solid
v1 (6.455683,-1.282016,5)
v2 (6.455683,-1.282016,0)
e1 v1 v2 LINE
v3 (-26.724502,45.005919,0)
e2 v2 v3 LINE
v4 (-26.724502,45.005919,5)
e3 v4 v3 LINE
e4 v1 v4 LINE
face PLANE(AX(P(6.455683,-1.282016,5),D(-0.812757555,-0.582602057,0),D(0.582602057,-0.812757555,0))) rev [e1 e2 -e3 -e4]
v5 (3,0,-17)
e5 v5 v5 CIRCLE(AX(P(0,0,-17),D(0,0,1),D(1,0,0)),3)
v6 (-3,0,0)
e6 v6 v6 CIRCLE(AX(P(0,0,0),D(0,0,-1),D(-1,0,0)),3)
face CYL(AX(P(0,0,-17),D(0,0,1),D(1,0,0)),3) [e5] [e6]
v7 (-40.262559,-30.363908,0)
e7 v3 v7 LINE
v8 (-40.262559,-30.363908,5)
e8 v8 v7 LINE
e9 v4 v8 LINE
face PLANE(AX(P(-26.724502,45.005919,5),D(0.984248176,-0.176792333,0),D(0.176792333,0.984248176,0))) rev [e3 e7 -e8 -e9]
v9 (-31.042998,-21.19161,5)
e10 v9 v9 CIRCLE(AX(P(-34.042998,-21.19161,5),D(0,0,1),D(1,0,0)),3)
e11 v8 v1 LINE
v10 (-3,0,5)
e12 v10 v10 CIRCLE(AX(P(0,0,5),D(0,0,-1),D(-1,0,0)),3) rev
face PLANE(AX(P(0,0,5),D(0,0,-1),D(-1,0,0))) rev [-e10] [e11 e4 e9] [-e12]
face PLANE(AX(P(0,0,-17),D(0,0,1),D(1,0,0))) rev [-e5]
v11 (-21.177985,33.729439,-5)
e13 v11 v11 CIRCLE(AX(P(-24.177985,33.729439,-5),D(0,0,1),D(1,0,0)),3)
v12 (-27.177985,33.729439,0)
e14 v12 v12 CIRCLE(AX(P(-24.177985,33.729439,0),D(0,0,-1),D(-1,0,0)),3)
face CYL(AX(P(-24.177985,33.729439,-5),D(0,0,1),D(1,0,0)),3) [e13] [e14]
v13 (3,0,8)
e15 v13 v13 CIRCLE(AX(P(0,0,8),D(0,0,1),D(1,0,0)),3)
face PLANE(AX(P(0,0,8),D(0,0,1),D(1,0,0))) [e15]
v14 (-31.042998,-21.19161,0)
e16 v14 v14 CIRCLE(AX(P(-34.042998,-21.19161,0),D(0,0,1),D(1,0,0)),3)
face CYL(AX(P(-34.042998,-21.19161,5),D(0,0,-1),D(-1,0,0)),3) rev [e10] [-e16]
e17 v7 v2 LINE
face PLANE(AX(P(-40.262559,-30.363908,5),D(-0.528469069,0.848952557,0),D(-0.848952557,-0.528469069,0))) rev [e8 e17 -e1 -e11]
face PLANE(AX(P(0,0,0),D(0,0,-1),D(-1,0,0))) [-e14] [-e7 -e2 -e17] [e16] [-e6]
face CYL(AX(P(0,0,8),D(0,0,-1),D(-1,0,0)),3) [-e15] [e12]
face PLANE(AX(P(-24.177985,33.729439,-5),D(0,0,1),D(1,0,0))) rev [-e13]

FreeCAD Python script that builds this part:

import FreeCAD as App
import Part
import Sketcher
Q = App.Units.Quantity


def add_polygon(sketch, points):
    """Adds a closed chain of lines whose ends are joined by coincident constraints."""
    first, n = sketch.GeometryCount, len(points)
    for a, b in zip(points, points[1:] + points[:1]):
        sketch.addGeometry(Part.LineSegment(App.Vector(*a, 0), App.Vector(*b, 0)), False)
    for i in range(n):
        sketch.addConstraint(Sketcher.Constraint("Coincident", first + i, 2, first + (i + 1) % n, 1))

doc = App.newDocument("Part")
body = doc.addObject("PartDesign::Body", "Body")

sketch1 = body.newObject("Sketcher::SketchObject", "Sketch")
sketch1.AttachmentSupport = (doc.getObject("XY_Plane"), [""])
sketch1.MapMode = "FlatFace"
add_polygon(sketch1, [(-26.7, 45), (-40.3, -30.4), (6.5, -1.3)])
sketch1.addGeometry(Part.Circle(App.Vector(-34, -21.2, 0), App.Vector(0, 0, 1), 3), False)
sketch1.addGeometry(Part.Circle(App.Vector(0, 0, 0), App.Vector(0, 0, 1), 3), False)
sketch1.addGeometry(Part.Circle(App.Vector(-24.2, 33.7, 0), App.Vector(0, 0, 1), 3), False)
sketch1.addConstraint([
    Sketcher.Constraint("Coincident", 4, 3, -1, 1),
    Sketcher.Constraint("Equal", 3, 4),
    Sketcher.Constraint("Equal", 4, 5),
    Sketcher.Constraint("Diameter", 3, Q("6 mm")),
    Sketcher.Constraint("Distance", 0, Q("76.576039 mm")),
    Sketcher.Constraint("Distance", 1, Q("55.030451 mm")),
    Sketcher.Constraint("DistanceY", 3, 3, -1, 1, Q("21.19161 mm")),
    Sketcher.Constraint("DistanceY", -1, 1, 5, 3, Q("33.729439 mm")),
    Sketcher.Constraint("DistanceX", 0, 2, -1, 1, Q("40.262559 mm")),
    Sketcher.Constraint("DistanceY", -1, 1, 2, 2, Q("45.005919 mm")),
    Sketcher.Constraint("DistanceX", 0, 2, 3, 3, Q("6.219561 mm")),
    Sketcher.Constraint("DistanceX", 3, 3, 1, 2, Q("40.498681 mm")),
    Sketcher.Constraint("DistanceX", 5, 3, 1, 2, Q("30.633669 mm")),
    Sketcher.Constraint("Distance", 2, Q("56.951714 mm")),
])
pad1 = body.newObject("PartDesign::Pad", "Pad")
pad1.Profile = sketch1
pad1.Length = 5

sketch2 = body.newObject("Sketcher::SketchObject", "Sketch001")
sketch2.AttachmentSupport = (doc.getObject("XY_Plane"), [""])
sketch2.MapMode = "FlatFace"
sketch2.AttachmentOffset = App.Placement(App.Vector(0, 0, -5), App.Rotation())
sketch2.addGeometry(Part.Circle(App.Vector(-24.2, 33.7, 0), App.Vector(0, 0, 1), 3), False)
sketch2.addConstraint([
    Sketcher.Constraint("Diameter", 0, Q("6 mm")),
    Sketcher.Constraint("DistanceY", -1, 1, 0, 3, Q("33.729439 mm")),
    Sketcher.Constraint("DistanceX", 0, 3, -1, 1, Q("24.177985 mm")),
])
pad2 = body.newObject("PartDesign::Pad", "Pad001")
pad2.Profile = sketch2
pad2.Length = 10

sketch3 = body.newObject("Sketcher::SketchObject", "Sketch002")
sketch3.AttachmentSupport = (doc.getObject("XY_Plane"), [""])
sketch3.MapMode = "FlatFace"
sketch3.AttachmentOffset = App.Placement(App.Vector(0, 0, -17), App.Rotation())
sketch3.addGeometry(Part.Circle(App.Vector(0, 0, 0), App.Vector(0, 0, 1), 3), False)
sketch3.addConstraint([
    Sketcher.Constraint("Coincident", 0, 3, -1, 1),
    Sketcher.Constraint("Diameter", 0, Q("6 mm")),
])
pad3 = body.newObject("PartDesign::Pad", "Pad002")
pad3.Profile = sketch3
pad3.Length = 22

sketch4 = body.newObject("Sketcher::SketchObject", "Sketch003")
sketch4.AttachmentSupport = (doc.getObject("XY_Plane"), [""])
sketch4.MapMode = "FlatFace"
sketch4.AttachmentOffset = App.Placement(App.Vector(0, 0, 5), App.Rotation())
sketch4.addGeometry(Part.Circle(App.Vector(0, 0, 0), App.Vector(0, 0, 1), 3), False)
sketch4.addConstraint([
    Sketcher.Constraint("Coincident", 0, 3, -1, 1),
    Sketcher.Constraint("Diameter", 0, Q("6 mm")),
])
pad4 = body.newObject("PartDesign::Pad", "Pad003")
pad4.Profile = sketch4
pad4.Length = 3

doc.recompute()
